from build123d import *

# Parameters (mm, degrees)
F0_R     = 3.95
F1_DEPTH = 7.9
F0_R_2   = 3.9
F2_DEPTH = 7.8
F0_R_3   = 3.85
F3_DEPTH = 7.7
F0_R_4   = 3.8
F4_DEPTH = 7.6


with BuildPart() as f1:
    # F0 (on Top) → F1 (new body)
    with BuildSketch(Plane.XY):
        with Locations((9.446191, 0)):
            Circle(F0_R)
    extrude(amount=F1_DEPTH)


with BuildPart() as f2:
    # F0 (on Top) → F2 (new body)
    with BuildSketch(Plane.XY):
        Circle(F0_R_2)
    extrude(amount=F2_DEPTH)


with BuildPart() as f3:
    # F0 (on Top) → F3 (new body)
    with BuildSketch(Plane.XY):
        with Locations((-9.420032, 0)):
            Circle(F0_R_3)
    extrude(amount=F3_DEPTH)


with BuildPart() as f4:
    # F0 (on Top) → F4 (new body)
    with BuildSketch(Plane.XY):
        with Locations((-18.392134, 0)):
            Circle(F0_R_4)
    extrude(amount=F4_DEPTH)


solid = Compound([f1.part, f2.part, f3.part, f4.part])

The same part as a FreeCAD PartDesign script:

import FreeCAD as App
import Part
import Sketcher

doc = App.newDocument("Part")
params = doc.addObject("Spreadsheet::Sheet", "Params")
for row, (alias, value) in enumerate([
    ("sketch1_diameter", "7.9 mm"),
    ("pad1_length", "7.9 mm"),
    ("sketch2_diameter", "7.8 mm"),
    ("pad2_length", "7.8 mm"),
    ("sketch3_diameter", "7.7 mm"),
    ("pad3_length", "7.7 mm"),
    ("sketch4_diameter", "7.6 mm"),
    ("pad4_length", "7.6 mm"),
], start=1):
    params.set(f"A{row}", alias)
    params.set(f"B{row}", "=" + value)
    params.setAlias(f"B{row}", alias)

body = doc.addObject("PartDesign::Body", "Body")

# Sketch on XY plane
sketch1 = doc.addObject("Sketcher::SketchObject", "Sketch")
body.addObject(sketch1)
sketch1.AttachmentSupport = (doc.XY_Plane, [""])
sketch1.MapMode = "FlatFace"
sketch1.addGeometry(Part.Circle(App.Vector(9.4, 0, 0), App.Vector(0, 0, 1), 4), False)
sketch1.addConstraint([
    Sketcher.Constraint("PointOnObject", 0, 3, -1),
    Sketcher.Constraint("Diameter", 0, 7.9),
    Sketcher.Constraint("DistanceX", -1, 1, 0, 3, 9.446191),
])
sketch1.setExpression("Constraints[1]", "Params.sketch1_diameter")
pad1 = doc.addObject("PartDesign::Pad", "Pad")
body.addObject(pad1)
pad1.Profile = sketch1
pad1.setExpression("Length", "Params.pad1_length")
body2 = doc.addObject("PartDesign::Body", "Body001")

# Sketch on XY plane
sketch2 = doc.addObject("Sketcher::SketchObject", "Sketch001")
body2.addObject(sketch2)
sketch2.AttachmentSupport = (doc.getObject("XY_Plane001"), [""])
sketch2.MapMode = "FlatFace"
sketch2.addGeometry(Part.Circle(App.Vector(0, 0, 0), App.Vector(0, 0, 1), 3.9), False)
sketch2.addConstraint([
    Sketcher.Constraint("Coincident", 0, 3, -1, 1),
    Sketcher.Constraint("Diameter", 0, 7.8),
])
sketch2.setExpression("Constraints[1]", "Params.sketch2_diameter")
pad2 = doc.addObject("PartDesign::Pad", "Pad001")
body2.addObject(pad2)
pad2.Profile = sketch2
pad2.setExpression("Length", "Params.pad2_length")
body3 = doc.addObject("PartDesign::Body", "Body002")

# Sketch on XY plane
sketch3 = doc.addObject("Sketcher::SketchObject", "Sketch002")
body3.addObject(sketch3)
sketch3.AttachmentSupport = (doc.getObject("XY_Plane002"), [""])
sketch3.MapMode = "FlatFace"
sketch3.addGeometry(Part.Circle(App.Vector(-9.4, 0, 0), App.Vector(0, 0, 1), 3.9), False)
sketch3.addConstraint([
    Sketcher.Constraint("PointOnObject", 0, 3, -1),
    Sketcher.Constraint("Diameter", 0, 7.7),
    Sketcher.Constraint("DistanceX", 0, 3, -1, 1, 9.420032),
])
sketch3.setExpression("Constraints[1]", "Params.sketch3_diameter")
pad3 = doc.addObject("PartDesign::Pad", "Pad002")
body3.addObject(pad3)
pad3.Profile = sketch3
pad3.setExpression("Length", "Params.pad3_length")
body4 = doc.addObject("PartDesign::Body", "Body003")

# Sketch on XY plane
sketch4 = doc.addObject("Sketcher::SketchObject", "Sketch003")
body4.addObject(sketch4)
sketch4.AttachmentSupport = (doc.getObject("XY_Plane003"), [""])
sketch4.MapMode = "FlatFace"
sketch4.addGeometry(Part.Circle(App.Vector(-18.4, 0, 0), App.Vector(0, 0, 1), 3.8), False)
sketch4.addConstraint([
    Sketcher.Constraint("PointOnObject", 0, 3, -1),
    Sketcher.Constraint("Diameter", 0, 7.6),
    Sketcher.Constraint("DistanceX", 0, 3, -1, 1, 18.392134),
])
sketch4.setExpression("Constraints[1]", "Params.sketch4_diameter")
pad4 = doc.addObject("PartDesign::Pad", "Pad003")
body4.addObject(pad4)
pad4.Profile = sketch4
pad4.setExpression("Length", "Params.pad4_length")

doc.recompute()
